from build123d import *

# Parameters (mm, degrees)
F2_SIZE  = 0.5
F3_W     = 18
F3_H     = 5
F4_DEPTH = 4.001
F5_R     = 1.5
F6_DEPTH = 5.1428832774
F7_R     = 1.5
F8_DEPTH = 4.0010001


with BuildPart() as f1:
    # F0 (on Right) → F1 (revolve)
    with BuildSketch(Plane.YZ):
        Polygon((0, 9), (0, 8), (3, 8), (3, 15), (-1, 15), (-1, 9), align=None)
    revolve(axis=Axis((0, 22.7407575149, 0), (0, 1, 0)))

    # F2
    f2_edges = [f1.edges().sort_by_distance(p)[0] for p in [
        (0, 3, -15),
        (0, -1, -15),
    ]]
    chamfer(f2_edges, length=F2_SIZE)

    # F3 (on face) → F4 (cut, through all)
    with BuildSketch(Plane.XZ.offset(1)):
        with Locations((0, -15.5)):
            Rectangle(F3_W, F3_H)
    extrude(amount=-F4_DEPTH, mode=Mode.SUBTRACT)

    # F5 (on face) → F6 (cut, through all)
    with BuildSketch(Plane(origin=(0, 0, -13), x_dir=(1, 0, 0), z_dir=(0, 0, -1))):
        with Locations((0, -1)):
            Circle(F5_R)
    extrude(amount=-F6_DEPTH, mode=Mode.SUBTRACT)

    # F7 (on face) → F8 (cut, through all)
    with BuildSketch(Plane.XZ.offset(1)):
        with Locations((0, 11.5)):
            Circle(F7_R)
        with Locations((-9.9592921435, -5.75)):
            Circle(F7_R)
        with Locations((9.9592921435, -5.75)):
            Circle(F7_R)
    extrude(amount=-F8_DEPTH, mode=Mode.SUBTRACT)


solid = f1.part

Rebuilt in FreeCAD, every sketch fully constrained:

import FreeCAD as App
import Part
import Sketcher


def edges_at(feature, points):
    """Names of the edges that pass closest to the given points."""
    edges = feature.Shape.Edges
    near = lambda p: min(range(len(edges)), key=lambda i: edges[i].distToShape(Part.Vertex(*p))[0])
    return sorted({f"Edge{near(p) + 1}" for p in points})


def add_polygon(sketch, points):
    """Adds a closed chain of lines whose ends are joined by coincident constraints."""
    first, n = sketch.GeometryCount, len(points)
    for a, b in zip(points, points[1:] + points[:1]):
        sketch.addGeometry(Part.LineSegment(App.Vector(*a, 0), App.Vector(*b, 0)), False)
    for i in range(n):
        sketch.addConstraint(Sketcher.Constraint("Coincident", first + i, 2, first + (i + 1) % n, 1))

doc = App.newDocument("Part")
body = doc.addObject("PartDesign::Body", "Body")

# Sketch on YZ plane
sketch1 = body.newObject("Sketcher::SketchObject", "Sketch")
sketch1.AttachmentSupport = (doc.getObject("YZ_Plane"), [""])
sketch1.MapMode = "FlatFace"
add_polygon(sketch1, [(0, 9), (0, 8), (3, 8), (3, 15), (-1, 15), (-1, 9)])  # lines 0-5
sketch1.addConstraint(Sketcher.Constraint("Vertical", 0))
sketch1.addConstraint(Sketcher.Constraint("Horizontal", 1))
sketch1.addConstraint(Sketcher.Constraint("Vertical", 2))
sketch1.addConstraint(Sketcher.Constraint("Horizontal", 3))
sketch1.addConstraint(Sketcher.Constraint("Vertical", 4))
sketch1.addConstraint(Sketcher.Constraint("Horizontal", 5))
sketch1.addConstraint(Sketcher.Constraint("PointOnObject", 0, 2, -2))
sketch1.addConstraint(Sketcher.Constraint("Equal", 5, 0))
sketch1.addConstraint(Sketcher.Constraint("DistanceX", 1, 1, 1, 2, 3.0))
sketch1.addConstraint(Sketcher.Constraint("DistanceX", 3, 2, 3, 1, 4.0))
sketch1.addConstraint(Sketcher.Constraint("DistanceY", 2, 1, 2, 2, 7.0))
sketch1.addConstraint(Sketcher.Constraint("DistanceY", -1, 1, 0, 2, 8.0))
revolution = body.newObject("PartDesign::Revolution", "Revolution")
revolution.Profile = sketch1
revolution.ReferenceAxis = (sketch1, ["H_Axis"])
revolution.Angle = 360
doc.recompute()

chamfer = body.newObject("PartDesign::Chamfer", "Chamfer")
chamfer.Base = (revolution, edges_at(revolution, [(0, 3, -15), (0, -1, -15)]))
chamfer.Size = 0.5

# Sketch on XZ plane
sketch2 = body.newObject("Sketcher::SketchObject", "Sketch001")
sketch2.AttachmentSupport = (doc.getObject("XZ_Plane"), [""])
sketch2.MapMode = "FlatFace"
sketch2.AttachmentOffset = App.Placement(App.Vector(0, 0, 1), App.Rotation())
add_polygon(sketch2, [(-9, -13), (-9, -18), (9, -18), (9, -13)])  # lines 0-3
sketch2.addConstraint(Sketcher.Constraint("Vertical", 0))
sketch2.addConstraint(Sketcher.Constraint("Horizontal", 1))
sketch2.addConstraint(Sketcher.Constraint("Vertical", 2))
sketch2.addConstraint(Sketcher.Constraint("Horizontal", 3))
sketch2.addConstraint(Sketcher.Constraint("DistanceX", 1, 1, 1, 2, 18.0))
sketch2.addConstraint(Sketcher.Constraint("DistanceY", 0, 2, 0, 1, 5.0))
sketch2.addConstraint(Sketcher.Constraint("DistanceX", 0, 2, -1, 1, 9.0))
sketch2.addConstraint(Sketcher.Constraint("DistanceY", 0, 2, -1, 1, 18.0))
pocket1 = body.newObject("PartDesign::Pocket", "Pocket")
pocket1.Profile = sketch2
pocket1.Type = "ThroughAll"

# Sketch on XY plane
sketch3 = body.newObject("Sketcher::SketchObject", "Sketch002")
sketch3.AttachmentSupport = (doc.getObject("XY_Plane"), [""])
sketch3.MapMode = "FlatFace"
sketch3.AttachmentOffset = App.Placement(App.Vector(0, 0, -13), App.Rotation())
sketch3.addGeometry(Part.Circle(App.Vector(0, 1, 0), App.Vector(0, 0, 1), 1.5), False)
sketch3.addConstraint(Sketcher.Constraint("PointOnObject", 0, 3, -2))
sketch3.addConstraint(Sketcher.Constraint("Diameter", 0, 3.0))
sketch3.addConstraint(Sketcher.Constraint("DistanceY", -1, 1, 0, 3, 1.0))
pocket2 = body.newObject("PartDesign::Pocket", "Pocket001")
pocket2.Profile = sketch3
pocket2.Length = 5.142883
pocket2.Reversed = True

# Sketch on XZ plane
sketch4 = body.newObject("Sketcher::SketchObject", "Sketch003")
sketch4.AttachmentSupport = (doc.getObject("XZ_Plane"), [""])
sketch4.MapMode = "FlatFace"
sketch4.AttachmentOffset = App.Placement(App.Vector(0, 0, 1), App.Rotation())
sketch4.addGeometry(Part.Circle(App.Vector(0, 11.5, 0), App.Vector(0, 0, 1), 1.5), False)
sketch4.addGeometry(Part.Circle(App.Vector(-10, -5.8, 0), App.Vector(0, 0, 1), 1.5), False)
sketch4.addGeometry(Part.Circle(App.Vector(10, -5.8, 0), App.Vector(0, 0, 1), 1.5), False)
sketch4.addConstraint(Sketcher.Constraint("Equal", 0, 1))
sketch4.addConstraint(Sketcher.Constraint("Equal", 1, 2))
sketch4.addConstraint(Sketcher.Constraint("Symmetric", 1, 3, 2, 3, -2))
sketch4.addConstraint(Sketcher.Constraint("PointOnObject", 0, 3, -2))
sketch4.addConstraint(Sketcher.Constraint("Diameter", 0, 3.0))
sketch4.addConstraint(Sketcher.Constraint("DistanceY", -1, 1, 0, 3, 11.5))
sketch4.addConstraint(Sketcher.Constraint("DistanceY", 1, 3, -1, 1, 5.75))
sketch4.addConstraint(Sketcher.Constraint("DistanceX", 1, 3, -1, 1, 9.959292))
pocket3 = body.newObject("PartDesign::Pocket", "Pocket002")
pocket3.Profile = sketch4
pocket3.Type = "ThroughAll"

doc.recompute()
